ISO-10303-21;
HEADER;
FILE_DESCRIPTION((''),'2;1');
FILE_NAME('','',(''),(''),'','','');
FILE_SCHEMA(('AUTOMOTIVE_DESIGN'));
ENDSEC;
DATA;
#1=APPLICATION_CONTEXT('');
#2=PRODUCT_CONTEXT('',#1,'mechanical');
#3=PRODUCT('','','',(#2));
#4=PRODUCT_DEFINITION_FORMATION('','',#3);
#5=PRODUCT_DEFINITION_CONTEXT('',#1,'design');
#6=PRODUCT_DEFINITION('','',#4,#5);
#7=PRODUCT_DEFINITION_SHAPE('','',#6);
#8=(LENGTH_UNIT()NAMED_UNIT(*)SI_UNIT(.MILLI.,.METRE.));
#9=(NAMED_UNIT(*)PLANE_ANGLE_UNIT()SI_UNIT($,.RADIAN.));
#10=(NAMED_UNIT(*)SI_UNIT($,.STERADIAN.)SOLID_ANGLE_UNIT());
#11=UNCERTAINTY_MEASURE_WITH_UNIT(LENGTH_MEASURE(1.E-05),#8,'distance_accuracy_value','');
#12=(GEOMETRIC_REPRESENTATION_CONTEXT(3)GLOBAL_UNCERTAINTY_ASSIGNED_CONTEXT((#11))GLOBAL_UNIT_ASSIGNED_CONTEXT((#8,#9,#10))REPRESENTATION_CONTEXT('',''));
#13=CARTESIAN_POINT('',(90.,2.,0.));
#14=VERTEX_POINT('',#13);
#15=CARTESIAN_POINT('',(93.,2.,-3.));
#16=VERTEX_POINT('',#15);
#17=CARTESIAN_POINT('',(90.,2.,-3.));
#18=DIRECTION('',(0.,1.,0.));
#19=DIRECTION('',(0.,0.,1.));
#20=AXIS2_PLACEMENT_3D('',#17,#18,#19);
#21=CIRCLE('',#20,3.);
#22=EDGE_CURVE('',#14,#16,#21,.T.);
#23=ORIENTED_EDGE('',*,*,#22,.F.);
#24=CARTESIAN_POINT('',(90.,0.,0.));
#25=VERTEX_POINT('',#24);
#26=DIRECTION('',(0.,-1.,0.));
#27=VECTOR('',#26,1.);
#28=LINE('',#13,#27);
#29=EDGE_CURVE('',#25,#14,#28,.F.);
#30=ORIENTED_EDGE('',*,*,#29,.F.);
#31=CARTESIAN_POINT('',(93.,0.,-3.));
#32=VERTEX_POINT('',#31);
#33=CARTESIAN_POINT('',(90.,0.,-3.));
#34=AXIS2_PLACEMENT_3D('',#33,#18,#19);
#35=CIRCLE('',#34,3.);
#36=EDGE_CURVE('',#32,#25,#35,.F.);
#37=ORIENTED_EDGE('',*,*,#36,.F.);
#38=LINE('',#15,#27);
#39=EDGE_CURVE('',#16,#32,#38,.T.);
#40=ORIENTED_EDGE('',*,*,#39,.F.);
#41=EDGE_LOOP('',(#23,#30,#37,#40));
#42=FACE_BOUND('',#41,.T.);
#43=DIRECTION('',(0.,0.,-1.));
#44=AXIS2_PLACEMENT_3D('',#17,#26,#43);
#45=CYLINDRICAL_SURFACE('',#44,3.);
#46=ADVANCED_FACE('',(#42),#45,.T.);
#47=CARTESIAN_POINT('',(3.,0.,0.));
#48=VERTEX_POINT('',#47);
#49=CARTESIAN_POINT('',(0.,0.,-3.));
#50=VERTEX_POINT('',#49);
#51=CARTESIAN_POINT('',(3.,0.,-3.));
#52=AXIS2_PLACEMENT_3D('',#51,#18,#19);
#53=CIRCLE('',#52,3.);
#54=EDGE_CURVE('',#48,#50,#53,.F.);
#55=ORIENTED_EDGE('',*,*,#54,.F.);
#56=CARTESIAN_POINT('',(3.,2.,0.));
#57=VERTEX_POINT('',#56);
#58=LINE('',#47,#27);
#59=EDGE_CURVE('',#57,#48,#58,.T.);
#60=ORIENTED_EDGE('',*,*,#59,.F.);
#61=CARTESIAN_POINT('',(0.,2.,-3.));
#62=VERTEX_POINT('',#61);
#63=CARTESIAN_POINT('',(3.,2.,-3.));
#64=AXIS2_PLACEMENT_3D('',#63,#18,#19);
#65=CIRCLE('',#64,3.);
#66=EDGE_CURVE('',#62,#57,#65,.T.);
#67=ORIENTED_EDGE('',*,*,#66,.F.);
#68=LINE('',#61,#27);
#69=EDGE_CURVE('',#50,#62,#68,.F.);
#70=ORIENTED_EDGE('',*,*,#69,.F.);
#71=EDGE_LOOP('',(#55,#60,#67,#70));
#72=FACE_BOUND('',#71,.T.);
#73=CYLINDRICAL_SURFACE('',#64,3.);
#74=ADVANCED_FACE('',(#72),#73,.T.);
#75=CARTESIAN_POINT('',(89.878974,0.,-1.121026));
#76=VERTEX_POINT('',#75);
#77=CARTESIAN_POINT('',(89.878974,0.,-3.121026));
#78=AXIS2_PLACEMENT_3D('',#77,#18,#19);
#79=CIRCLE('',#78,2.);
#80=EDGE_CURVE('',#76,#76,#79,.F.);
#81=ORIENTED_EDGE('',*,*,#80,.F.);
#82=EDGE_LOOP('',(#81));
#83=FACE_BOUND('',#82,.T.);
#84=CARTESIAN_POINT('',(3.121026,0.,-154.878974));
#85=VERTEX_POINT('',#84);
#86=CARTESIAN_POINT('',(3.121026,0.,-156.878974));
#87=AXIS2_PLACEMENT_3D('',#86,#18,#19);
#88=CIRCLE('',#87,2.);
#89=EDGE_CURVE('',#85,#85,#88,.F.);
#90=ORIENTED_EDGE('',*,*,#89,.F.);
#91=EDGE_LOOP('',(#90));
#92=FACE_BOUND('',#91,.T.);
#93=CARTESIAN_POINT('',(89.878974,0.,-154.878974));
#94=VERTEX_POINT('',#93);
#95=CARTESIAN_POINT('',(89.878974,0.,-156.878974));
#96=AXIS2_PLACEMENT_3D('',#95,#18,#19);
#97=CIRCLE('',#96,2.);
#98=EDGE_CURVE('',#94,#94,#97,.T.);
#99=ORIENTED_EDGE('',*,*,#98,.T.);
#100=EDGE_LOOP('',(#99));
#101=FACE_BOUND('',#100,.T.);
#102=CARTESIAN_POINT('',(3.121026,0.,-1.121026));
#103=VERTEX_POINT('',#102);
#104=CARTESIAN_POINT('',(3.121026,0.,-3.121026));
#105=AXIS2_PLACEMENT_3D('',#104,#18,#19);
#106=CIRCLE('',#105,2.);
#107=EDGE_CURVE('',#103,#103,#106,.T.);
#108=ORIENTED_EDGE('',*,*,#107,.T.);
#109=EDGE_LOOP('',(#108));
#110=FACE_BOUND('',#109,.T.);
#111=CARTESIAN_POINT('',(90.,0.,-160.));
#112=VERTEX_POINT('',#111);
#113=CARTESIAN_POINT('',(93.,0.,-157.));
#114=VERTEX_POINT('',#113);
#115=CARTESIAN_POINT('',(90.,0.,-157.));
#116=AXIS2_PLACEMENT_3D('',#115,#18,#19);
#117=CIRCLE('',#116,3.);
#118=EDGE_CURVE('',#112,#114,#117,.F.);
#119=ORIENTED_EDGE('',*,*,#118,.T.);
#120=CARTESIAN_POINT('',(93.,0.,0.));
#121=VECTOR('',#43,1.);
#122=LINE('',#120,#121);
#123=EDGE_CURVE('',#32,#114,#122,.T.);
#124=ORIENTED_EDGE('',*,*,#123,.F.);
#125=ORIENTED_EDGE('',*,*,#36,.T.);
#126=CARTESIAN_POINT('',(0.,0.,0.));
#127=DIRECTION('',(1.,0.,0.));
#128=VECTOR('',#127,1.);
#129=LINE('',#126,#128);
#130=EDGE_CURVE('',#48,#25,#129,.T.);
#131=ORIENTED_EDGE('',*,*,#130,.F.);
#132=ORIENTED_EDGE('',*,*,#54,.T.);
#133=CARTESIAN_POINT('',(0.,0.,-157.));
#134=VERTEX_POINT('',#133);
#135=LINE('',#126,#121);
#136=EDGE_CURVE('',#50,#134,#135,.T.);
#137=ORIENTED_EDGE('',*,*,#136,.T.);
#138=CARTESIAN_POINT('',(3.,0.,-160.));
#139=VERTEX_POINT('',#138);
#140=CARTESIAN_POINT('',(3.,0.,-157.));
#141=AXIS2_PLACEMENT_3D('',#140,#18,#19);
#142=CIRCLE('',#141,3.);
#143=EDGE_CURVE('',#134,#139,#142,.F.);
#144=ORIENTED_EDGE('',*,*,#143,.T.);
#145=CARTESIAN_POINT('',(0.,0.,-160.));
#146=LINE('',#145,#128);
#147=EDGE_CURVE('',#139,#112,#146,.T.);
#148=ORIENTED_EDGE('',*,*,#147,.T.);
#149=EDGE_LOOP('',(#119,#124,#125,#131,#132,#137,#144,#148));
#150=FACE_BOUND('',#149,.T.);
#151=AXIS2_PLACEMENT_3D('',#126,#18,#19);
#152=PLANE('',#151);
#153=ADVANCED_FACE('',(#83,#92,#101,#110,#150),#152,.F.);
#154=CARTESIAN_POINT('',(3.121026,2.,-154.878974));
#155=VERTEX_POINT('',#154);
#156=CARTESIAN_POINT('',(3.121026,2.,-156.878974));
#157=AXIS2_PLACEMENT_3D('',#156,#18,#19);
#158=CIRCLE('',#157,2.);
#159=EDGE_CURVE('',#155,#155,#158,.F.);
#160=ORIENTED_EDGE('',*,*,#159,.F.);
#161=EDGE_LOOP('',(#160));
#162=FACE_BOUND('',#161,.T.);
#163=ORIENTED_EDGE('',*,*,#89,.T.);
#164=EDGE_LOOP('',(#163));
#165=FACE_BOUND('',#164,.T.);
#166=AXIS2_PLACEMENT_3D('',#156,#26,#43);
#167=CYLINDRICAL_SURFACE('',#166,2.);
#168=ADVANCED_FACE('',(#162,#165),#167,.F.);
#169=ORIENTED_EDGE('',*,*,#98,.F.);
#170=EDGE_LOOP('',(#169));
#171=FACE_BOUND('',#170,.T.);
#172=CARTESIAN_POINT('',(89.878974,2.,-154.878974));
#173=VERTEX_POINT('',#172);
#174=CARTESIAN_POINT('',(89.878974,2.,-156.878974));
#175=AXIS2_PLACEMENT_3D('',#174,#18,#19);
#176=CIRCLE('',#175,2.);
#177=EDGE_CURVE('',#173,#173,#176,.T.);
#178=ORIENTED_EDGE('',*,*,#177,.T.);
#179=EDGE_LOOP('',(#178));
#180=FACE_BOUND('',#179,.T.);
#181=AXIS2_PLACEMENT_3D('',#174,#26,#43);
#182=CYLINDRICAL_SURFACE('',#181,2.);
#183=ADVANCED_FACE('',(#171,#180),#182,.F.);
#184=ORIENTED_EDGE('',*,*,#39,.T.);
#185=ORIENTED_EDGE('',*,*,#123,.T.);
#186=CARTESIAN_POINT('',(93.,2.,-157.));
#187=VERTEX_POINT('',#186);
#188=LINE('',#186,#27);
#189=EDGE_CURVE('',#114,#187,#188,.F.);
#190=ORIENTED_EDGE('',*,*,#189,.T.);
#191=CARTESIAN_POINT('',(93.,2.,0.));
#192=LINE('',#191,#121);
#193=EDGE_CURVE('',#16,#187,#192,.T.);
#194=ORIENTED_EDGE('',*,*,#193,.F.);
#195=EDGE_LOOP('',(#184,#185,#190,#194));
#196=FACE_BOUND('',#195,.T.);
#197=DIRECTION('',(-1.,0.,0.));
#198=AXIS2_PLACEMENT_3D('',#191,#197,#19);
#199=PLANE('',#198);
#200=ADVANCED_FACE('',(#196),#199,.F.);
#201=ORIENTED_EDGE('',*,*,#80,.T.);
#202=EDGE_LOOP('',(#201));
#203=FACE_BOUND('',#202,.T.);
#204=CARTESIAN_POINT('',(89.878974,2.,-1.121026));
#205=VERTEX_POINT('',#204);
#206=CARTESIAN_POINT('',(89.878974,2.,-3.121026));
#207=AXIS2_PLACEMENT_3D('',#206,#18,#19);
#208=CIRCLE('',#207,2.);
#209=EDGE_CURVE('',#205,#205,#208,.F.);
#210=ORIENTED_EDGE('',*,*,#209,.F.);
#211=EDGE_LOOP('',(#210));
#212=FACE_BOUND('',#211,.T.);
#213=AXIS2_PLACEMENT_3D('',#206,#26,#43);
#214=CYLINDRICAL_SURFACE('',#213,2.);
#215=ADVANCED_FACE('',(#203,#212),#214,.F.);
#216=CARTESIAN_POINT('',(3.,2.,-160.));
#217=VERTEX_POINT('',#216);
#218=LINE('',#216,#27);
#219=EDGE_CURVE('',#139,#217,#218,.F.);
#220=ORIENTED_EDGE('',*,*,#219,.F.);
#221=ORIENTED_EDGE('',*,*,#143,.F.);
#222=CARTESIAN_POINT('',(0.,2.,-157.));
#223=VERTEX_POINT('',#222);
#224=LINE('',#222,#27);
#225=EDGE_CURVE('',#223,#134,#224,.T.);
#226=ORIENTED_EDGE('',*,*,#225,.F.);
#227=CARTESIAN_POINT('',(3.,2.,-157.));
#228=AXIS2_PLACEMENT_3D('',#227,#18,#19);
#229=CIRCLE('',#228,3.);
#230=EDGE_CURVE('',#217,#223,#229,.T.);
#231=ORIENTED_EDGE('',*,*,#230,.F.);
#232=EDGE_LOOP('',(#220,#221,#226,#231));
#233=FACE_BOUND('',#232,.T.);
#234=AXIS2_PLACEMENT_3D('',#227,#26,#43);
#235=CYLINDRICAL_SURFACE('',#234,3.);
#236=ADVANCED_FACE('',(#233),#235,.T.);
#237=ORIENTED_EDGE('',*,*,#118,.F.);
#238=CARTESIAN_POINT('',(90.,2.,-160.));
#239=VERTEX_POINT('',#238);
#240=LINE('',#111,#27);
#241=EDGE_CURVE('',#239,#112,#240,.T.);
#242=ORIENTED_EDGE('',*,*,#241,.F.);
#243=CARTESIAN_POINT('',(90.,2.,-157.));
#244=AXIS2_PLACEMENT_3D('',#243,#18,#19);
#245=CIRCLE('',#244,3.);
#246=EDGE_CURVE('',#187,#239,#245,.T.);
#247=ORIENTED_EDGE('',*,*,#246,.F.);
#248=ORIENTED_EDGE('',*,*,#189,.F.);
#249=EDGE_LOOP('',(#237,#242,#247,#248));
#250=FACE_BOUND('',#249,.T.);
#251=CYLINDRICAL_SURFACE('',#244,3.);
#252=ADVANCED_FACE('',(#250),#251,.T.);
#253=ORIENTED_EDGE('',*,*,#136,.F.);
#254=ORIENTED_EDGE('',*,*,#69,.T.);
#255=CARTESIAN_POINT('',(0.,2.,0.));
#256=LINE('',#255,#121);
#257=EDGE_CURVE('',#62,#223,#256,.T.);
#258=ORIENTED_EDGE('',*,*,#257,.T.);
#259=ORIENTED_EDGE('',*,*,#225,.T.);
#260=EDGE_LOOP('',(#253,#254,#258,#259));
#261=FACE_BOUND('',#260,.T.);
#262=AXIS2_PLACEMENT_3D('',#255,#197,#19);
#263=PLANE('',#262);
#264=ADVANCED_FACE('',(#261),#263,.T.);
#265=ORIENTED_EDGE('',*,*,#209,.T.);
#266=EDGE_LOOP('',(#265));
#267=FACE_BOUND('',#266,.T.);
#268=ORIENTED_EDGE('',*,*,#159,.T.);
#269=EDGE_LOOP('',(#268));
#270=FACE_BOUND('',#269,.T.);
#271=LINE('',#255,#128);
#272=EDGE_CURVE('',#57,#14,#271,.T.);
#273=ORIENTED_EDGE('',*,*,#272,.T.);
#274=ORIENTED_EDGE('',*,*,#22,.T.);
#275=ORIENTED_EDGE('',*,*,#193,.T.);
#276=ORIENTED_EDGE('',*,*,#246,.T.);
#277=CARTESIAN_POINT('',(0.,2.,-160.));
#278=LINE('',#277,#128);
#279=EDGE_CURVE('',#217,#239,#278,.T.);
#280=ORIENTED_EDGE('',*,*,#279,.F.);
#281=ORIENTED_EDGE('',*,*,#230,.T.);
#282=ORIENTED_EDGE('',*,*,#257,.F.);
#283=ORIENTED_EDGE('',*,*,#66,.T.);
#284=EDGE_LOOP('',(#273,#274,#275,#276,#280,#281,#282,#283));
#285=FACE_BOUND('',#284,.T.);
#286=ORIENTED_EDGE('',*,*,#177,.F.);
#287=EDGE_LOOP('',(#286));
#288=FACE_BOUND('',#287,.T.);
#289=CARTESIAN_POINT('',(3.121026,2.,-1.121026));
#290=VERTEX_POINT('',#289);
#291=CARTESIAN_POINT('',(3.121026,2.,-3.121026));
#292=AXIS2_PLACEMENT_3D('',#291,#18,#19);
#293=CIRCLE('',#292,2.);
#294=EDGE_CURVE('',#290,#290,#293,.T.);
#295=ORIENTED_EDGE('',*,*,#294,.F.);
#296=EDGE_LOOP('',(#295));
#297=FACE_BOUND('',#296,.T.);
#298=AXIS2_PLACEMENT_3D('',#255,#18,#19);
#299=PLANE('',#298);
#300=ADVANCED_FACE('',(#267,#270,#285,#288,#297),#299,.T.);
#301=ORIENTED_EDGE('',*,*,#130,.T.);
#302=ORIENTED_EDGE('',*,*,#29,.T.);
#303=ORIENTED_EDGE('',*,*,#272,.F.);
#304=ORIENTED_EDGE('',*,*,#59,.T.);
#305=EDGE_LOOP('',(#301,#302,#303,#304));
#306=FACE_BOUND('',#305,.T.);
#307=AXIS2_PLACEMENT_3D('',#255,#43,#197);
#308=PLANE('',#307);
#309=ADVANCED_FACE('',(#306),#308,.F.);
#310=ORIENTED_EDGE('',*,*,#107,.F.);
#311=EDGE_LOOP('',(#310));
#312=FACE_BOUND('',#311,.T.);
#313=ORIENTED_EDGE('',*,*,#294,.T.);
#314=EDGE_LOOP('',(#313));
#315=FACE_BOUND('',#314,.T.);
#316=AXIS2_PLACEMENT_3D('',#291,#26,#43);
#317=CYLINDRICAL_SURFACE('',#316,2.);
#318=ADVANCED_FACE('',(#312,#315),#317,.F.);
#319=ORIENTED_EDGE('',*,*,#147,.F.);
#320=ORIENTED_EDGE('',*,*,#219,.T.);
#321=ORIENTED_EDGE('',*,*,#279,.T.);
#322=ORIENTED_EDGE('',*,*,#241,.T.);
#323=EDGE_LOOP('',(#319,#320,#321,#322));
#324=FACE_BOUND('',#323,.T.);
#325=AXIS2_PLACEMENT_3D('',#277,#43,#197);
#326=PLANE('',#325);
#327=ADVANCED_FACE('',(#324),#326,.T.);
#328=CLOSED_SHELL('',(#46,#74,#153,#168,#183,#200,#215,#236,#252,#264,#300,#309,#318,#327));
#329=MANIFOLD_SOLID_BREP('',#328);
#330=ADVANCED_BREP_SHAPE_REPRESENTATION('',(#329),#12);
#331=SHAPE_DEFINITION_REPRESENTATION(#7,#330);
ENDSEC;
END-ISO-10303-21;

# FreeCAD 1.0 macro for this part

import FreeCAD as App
import Part
import Sketcher


def edges_at(feature, points):
    """Names of the edges that pass closest to the given points."""
    edges = feature.Shape.Edges
    near = lambda p: min(range(len(edges)), key=lambda i: edges[i].distToShape(Part.Vertex(*p))[0])
    return sorted({f"Edge{near(p) + 1}" for p in points})


def add_polygon(sketch, points):
    """Adds a closed chain of lines whose ends are joined by coincident constraints."""
    first, n = sketch.GeometryCount, len(points)
    for a, b in zip(points, points[1:] + points[:1]):
        sketch.addGeometry(Part.LineSegment(App.Vector(*a, 0), App.Vector(*b, 0)), False)
    for i in range(n):
        sketch.addConstraint(Sketcher.Constraint("Coincident", first + i, 2, first + (i + 1) % n, 1))

doc = App.newDocument("Part")
params = doc.addObject("Spreadsheet::Sheet", "Params")
for row, (alias, value) in enumerate([
    ("sketch1_diameter", "4 mm"),
    ("sketch1_width", "93 mm"),
    ("sketch1_height", "160 mm"),
    ("pad1_length", "2 mm"),
    ("fillet_radius", "3 mm"),
], start=1):
    params.set(f"A{row}", alias)
    params.set(f"B{row}", "=" + value)
    params.setAlias(f"B{row}", alias)

body = doc.addObject("PartDesign::Body", "Body")

sketch1 = body.newObject("Sketcher::SketchObject", "Sketch")
sketch1.AttachmentSupport = (doc.getObject("XZ_Plane"), [""])
sketch1.MapMode = "FlatFace"
add_polygon(sketch1, [(0, 0), (93, 0), (93, -160), (0, -160)])
sketch1.addGeometry(Part.Circle(App.Vector(3.1, -3.1, 0), App.Vector(0, 0, 1), 2), False)
sketch1.addGeometry(Part.Circle(App.Vector(89.9, -3.1, 0), App.Vector(0, 0, 1), 2), False)
sketch1.addGeometry(Part.Circle(App.Vector(3.1, -156.9, 0), App.Vector(0, 0, 1), 2), False)
sketch1.addGeometry(Part.Circle(App.Vector(89.9, -156.9, 0), App.Vector(0, 0, 1), 2), False)
sketch1.addConstraint([
    Sketcher.Constraint("Horizontal", 0),
    Sketcher.Constraint("Vertical", 1),
    Sketcher.Constraint("Horizontal", 2),
    Sketcher.Constraint("Vertical", 3),
    Sketcher.Constraint("Coincident", 3, 2, -1, 1),
    Sketcher.Constraint("Equal", 4, 5),
    Sketcher.Constraint("Equal", 5, 6),
    Sketcher.Constraint("Equal", 6, 7),
    Sketcher.Constraint("Horizontal", 4, 3, 5, 3),
    Sketcher.Constraint("Horizontal", 6, 3, 7, 3),
    Sketcher.Constraint("Vertical", 4, 3, 6, 3),
    Sketcher.Constraint("Vertical", 5, 3, 7, 3),
    Sketcher.Constraint("Diameter", 4, 4.0),
    Sketcher.Constraint("DistanceX", 0, 1, 0, 2, 93.0),
    Sketcher.Constraint("DistanceY", 1, 2, 1, 1, 160.0),
    Sketcher.Constraint("DistanceX", 4, 3, 5, 3, 86.757949),
    Sketcher.Constraint("DistanceY", 6, 3, 4, 3, 153.757949),
    Sketcher.Constraint("DistanceX", -1, 1, 4, 3, 3.121026),
    Sketcher.Constraint("DistanceY", 4, 3, -1, 1, 3.121026),
])
sketch1.setExpression("Constraints[16]", "Params.sketch1_diameter")
sketch1.setExpression("Constraints[17]", "Params.sketch1_width")
sketch1.setExpression("Constraints[18]", "Params.sketch1_height")
pad1 = body.newObject("PartDesign::Pad", "Pad")
pad1.Profile = sketch1
pad1.setExpression("Length", "Params.pad1_length")
pad1.Reversed = True
doc.recompute()

fillet = body.newObject("PartDesign::Fillet", "Fillet")
fillet.Base = (pad1, edges_at(pad1, [
    (93, 1, -160),
    (93, 1, 0),
    (0, 1, 0),
    (0, 1, -160),
]))
fillet.setExpression("Radius", "Params.fillet_radius")

doc.recompute()
